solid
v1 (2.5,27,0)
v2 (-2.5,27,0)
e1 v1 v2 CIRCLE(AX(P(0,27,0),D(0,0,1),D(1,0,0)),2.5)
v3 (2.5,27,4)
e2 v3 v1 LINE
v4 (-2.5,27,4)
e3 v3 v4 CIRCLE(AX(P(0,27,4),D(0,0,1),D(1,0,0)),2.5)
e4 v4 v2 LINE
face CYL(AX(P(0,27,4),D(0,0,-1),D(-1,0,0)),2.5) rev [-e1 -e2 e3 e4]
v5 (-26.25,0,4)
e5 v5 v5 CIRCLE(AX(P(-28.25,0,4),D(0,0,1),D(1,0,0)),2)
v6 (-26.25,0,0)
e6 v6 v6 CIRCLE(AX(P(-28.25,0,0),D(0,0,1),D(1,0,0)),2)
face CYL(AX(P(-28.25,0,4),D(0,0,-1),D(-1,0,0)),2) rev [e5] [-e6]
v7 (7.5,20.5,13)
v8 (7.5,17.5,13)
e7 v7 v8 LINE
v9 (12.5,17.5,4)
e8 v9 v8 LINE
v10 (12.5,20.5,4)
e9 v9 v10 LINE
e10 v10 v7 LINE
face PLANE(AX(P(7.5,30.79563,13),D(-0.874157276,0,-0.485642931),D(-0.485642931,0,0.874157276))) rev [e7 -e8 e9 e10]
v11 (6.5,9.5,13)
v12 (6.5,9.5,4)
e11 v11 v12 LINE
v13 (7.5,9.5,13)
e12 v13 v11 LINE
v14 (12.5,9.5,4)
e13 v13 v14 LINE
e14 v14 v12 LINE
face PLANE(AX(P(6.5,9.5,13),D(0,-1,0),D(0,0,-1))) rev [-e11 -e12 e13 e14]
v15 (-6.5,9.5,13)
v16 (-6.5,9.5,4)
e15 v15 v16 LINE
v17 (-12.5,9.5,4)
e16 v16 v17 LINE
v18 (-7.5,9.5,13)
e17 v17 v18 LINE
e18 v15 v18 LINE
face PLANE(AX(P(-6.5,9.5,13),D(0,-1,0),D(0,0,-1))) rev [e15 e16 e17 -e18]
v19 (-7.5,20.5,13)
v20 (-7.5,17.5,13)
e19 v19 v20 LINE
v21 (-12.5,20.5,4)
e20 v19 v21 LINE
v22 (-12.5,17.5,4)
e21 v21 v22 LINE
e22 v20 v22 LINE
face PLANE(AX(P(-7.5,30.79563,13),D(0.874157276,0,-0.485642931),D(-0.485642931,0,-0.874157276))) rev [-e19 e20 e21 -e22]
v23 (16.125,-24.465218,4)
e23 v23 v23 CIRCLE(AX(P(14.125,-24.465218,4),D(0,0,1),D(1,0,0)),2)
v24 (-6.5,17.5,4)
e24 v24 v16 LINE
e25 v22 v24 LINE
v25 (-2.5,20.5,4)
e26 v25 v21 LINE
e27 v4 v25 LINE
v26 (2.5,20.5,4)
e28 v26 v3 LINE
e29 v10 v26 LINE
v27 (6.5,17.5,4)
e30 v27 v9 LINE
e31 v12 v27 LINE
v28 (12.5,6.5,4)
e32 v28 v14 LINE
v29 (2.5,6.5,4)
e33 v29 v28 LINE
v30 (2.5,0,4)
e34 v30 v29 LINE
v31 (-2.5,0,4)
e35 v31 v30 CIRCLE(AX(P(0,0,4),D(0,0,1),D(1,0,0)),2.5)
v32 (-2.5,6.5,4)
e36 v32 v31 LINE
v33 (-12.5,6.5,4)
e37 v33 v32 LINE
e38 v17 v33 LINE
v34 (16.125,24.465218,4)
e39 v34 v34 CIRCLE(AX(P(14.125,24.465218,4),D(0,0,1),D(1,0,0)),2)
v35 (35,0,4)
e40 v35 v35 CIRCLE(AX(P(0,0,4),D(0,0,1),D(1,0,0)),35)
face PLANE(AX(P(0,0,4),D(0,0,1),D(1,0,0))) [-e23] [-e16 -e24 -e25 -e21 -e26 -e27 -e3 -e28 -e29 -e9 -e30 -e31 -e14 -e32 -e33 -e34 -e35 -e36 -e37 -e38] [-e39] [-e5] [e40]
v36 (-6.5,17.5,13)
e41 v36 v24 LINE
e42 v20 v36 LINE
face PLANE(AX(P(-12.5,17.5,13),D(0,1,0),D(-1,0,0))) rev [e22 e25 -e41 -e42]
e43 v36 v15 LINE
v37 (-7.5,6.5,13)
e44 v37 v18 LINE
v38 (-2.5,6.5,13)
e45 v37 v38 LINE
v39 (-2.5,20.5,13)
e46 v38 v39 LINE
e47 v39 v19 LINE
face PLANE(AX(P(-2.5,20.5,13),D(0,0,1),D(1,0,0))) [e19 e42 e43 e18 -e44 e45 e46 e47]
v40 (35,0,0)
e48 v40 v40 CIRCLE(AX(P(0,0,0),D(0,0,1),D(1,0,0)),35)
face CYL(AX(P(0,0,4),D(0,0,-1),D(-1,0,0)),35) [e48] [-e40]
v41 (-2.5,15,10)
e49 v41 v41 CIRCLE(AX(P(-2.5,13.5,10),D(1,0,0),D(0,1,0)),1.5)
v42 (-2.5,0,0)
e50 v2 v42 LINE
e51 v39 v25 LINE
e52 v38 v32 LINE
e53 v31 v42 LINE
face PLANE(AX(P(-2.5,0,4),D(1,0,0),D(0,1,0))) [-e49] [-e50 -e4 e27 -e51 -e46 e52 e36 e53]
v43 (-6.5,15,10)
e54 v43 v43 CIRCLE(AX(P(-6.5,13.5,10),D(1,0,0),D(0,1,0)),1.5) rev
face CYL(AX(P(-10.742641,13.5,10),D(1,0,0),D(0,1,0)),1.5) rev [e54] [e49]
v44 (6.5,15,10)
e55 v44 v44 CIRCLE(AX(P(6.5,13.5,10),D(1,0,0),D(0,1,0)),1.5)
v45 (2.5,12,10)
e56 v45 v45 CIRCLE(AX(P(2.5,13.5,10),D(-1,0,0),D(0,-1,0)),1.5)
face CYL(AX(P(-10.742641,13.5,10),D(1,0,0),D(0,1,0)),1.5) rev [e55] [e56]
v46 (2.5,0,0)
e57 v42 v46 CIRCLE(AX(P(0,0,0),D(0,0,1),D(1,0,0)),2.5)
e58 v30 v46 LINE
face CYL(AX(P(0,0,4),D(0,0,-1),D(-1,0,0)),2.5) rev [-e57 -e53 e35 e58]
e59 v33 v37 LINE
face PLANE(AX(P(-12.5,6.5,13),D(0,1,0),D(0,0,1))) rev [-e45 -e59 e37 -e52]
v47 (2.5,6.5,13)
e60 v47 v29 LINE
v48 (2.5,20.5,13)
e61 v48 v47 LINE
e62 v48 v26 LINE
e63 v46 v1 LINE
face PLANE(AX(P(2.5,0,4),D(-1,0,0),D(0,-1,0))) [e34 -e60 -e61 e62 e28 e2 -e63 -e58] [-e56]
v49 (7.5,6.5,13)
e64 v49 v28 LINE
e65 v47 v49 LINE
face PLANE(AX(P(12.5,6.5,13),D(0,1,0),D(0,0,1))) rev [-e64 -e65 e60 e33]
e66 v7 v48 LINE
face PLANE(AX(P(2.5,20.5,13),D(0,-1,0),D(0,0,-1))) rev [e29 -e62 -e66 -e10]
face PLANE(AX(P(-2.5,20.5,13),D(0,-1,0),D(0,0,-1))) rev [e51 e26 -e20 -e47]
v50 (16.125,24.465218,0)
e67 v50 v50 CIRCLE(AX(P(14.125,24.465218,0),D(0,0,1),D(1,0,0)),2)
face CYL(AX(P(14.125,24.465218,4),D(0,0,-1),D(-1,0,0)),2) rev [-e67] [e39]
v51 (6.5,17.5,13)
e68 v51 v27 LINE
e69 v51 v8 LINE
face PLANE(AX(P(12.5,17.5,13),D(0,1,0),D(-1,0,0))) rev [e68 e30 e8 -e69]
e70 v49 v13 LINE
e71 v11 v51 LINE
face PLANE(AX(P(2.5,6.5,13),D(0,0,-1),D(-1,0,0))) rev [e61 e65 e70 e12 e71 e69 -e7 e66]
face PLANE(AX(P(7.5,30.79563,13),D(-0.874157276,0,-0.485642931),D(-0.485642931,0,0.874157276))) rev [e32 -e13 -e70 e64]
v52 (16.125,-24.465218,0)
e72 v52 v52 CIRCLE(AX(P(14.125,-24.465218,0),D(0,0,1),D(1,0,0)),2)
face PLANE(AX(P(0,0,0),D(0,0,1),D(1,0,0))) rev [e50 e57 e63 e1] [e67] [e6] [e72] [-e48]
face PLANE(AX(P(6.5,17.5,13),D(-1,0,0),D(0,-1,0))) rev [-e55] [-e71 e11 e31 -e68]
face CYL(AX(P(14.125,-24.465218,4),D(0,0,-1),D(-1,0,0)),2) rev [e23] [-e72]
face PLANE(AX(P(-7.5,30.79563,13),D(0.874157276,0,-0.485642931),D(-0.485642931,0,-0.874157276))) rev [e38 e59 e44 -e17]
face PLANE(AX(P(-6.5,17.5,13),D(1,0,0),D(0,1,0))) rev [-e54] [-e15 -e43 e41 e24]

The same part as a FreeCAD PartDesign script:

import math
import FreeCAD as App
import Part
import Sketcher

V = App.Vector
Q = App.Units.Quantity

doc = App.newDocument("Part")
body = doc.addObject("PartDesign::Body", "Body")

sketch1 = doc.addObject("Sketcher::SketchObject", "Sketch")
body.addObject(sketch1)
sketch1.AttachmentSupport = (doc.XY_Plane, [""])
sketch1.MapMode = "FlatFace"
sketch1.addGeometry(Part.Circle(V(0, 0, 0), V(0, 0, 1), 35), False)
sketch1.addGeometry(Part.Circle(V(-28.25, 0, 0), V(0, 0, 1), 2), False)
sketch1.addGeometry(Part.Circle(V(14.125, -24.465218, 0), V(0, 0, 1), 2), False)
sketch1.addGeometry(Part.ArcOfCircle(Part.Circle(V(0, 0, 0), V(0, 0, 1), 2.5), math.radians(180), math.radians(360)), False)
sketch1.addGeometry(Part.LineSegment(V(-2.5, 0, 0), V(-2.5, 27, 0)), False)
sketch1.addGeometry(Part.ArcOfCircle(Part.Circle(V(0, 27, 0), V(0, 0, 1), 2.5), math.radians(0), math.radians(180)), False)
sketch1.addGeometry(Part.LineSegment(V(2.5, 27, 0), V(2.5, 0, 0)), False)
sketch1.addGeometry(Part.Circle(V(14.125, 24.465218, 0), V(0, 0, 1), 2), False)
sketch1.addConstraint(Sketcher.Constraint("Tangent", 3, 1, 4, 1))
sketch1.addConstraint(Sketcher.Constraint("Tangent", 4, 2, 5, 2))
sketch1.addConstraint(Sketcher.Constraint("Tangent", 5, 1, 6, 1))
sketch1.addConstraint(Sketcher.Constraint("Tangent", 6, 2, 3, 2))
sketch1.addConstraint(Sketcher.Constraint("Vertical", 4))
sketch1.addConstraint(Sketcher.Constraint("Vertical", 6))
sketch1.addConstraint(Sketcher.Constraint("Coincident", 0, 3, -1, 1))
sketch1.addConstraint(Sketcher.Constraint("Coincident", 3, 3, -1, 1))
sketch1.addConstraint(Sketcher.Constraint("Equal", 1, 2))
sketch1.addConstraint(Sketcher.Constraint("Equal", 2, 7))
sketch1.addConstraint(Sketcher.Constraint("Symmetric", 2, 3, 7, 3, -1))
sketch1.addConstraint(Sketcher.Constraint("PointOnObject", 1, 3, -1))
sketch1.addConstraint(Sketcher.Constraint("Diameter", 0, Q("70 mm")))
sketch1.addConstraint(Sketcher.Constraint("Diameter", 1, Q("4 mm")))
sketch1.addConstraint(Sketcher.Constraint("Radius", 3, Q("2.5 mm")))
sketch1.addConstraint(Sketcher.Constraint("DistanceY", 4, 1, 4, 2, Q("27 mm")))
sketch1.addConstraint(Sketcher.Constraint("DistanceX", 1, 3, -1, 1, Q("28.25 mm")))
sketch1.addConstraint(Sketcher.Constraint("DistanceX", -1, 1, 2, 3, Q("14.125 mm")))
sketch1.addConstraint(Sketcher.Constraint("DistanceY", 2, 3, -1, 1, Q("24.465218 mm")))
pad1 = doc.addObject("PartDesign::Pad", "Pad")
body.addObject(pad1)
pad1.Profile = sketch1
pad1.Length = 4

sketch2 = doc.addObject("Sketcher::SketchObject", "Sketch001")
body.addObject(sketch2)
sketch2.AttachmentSupport = (doc.XY_Plane, [""])
sketch2.MapMode = "FlatFace"
sketch2.AttachmentOffset = App.Placement(V(0, 0, 4), App.Rotation())
sketch2.addGeometry(Part.LineSegment(V(-2.5, 20.5, 0), V(-12.5, 20.5, 0)), False)
sketch2.addGeometry(Part.LineSegment(V(-12.5, 20.5, 0), V(-12.5, 17.5, 0)), False)
sketch2.addGeometry(Part.LineSegment(V(-12.5, 17.5, 0), V(-6.5, 17.5, 0)), False)
sketch2.addGeometry(Part.LineSegment(V(-6.5, 17.5, 0), V(-6.5, 9.5, 0)), False)
sketch2.addGeometry(Part.LineSegment(V(-6.5, 9.5, 0), V(-12.5, 9.5, 0)), False)
sketch2.addGeometry(Part.LineSegment(V(-12.5, 9.5, 0), V(-12.5, 6.5, 0)), False)
sketch2.addGeometry(Part.LineSegment(V(-12.5, 6.5, 0), V(-2.5, 6.5, 0)), False)
sketch2.addGeometry(Part.LineSegment(V(-2.5, 6.5, 0), V(-2.5, 20.5, 0)), False)
sketch2.addGeometry(Part.LineSegment(V(2.5, 20.5, 0), V(2.5, 6.5, 0)), False)
sketch2.addGeometry(Part.LineSegment(V(2.5, 6.5, 0), V(12.5, 6.5, 0)), False)
sketch2.addGeometry(Part.LineSegment(V(12.5, 6.5, 0), V(12.5, 9.5, 0)), False)
sketch2.addGeometry(Part.LineSegment(V(12.5, 9.5, 0), V(6.5, 9.5, 0)), False)
sketch2.addGeometry(Part.LineSegment(V(6.5, 9.5, 0), V(6.5, 17.5, 0)), False)
sketch2.addGeometry(Part.LineSegment(V(6.5, 17.5, 0), V(12.5, 17.5, 0)), False)
sketch2.addGeometry(Part.LineSegment(V(12.5, 17.5, 0), V(12.5, 20.5, 0)), False)
sketch2.addGeometry(Part.LineSegment(V(12.5, 20.5, 0), V(2.5, 20.5, 0)), False)
sketch2.addConstraint(Sketcher.Constraint("Coincident", 0, 2, 1, 1))
sketch2.addConstraint(Sketcher.Constraint("Coincident", 1, 2, 2, 1))
sketch2.addConstraint(Sketcher.Constraint("Coincident", 2, 2, 3, 1))
sketch2.addConstraint(Sketcher.Constraint("Coincident", 3, 2, 4, 1))
sketch2.addConstraint(Sketcher.Constraint("Coincident", 4, 2, 5, 1))
sketch2.addConstraint(Sketcher.Constraint("Coincident", 5, 2, 6, 1))
sketch2.addConstraint(Sketcher.Constraint("Coincident", 6, 2, 7, 1))
sketch2.addConstraint(Sketcher.Constraint("Coincident", 7, 2, 0, 1))
sketch2.addConstraint(Sketcher.Constraint("Coincident", 8, 2, 9, 1))
sketch2.addConstraint(Sketcher.Constraint("Coincident", 9, 2, 10, 1))
sketch2.addConstraint(Sketcher.Constraint("Coincident", 10, 2, 11, 1))
sketch2.addConstraint(Sketcher.Constraint("Coincident", 11, 2, 12, 1))
sketch2.addConstraint(Sketcher.Constraint("Coincident", 12, 2, 13, 1))
sketch2.addConstraint(Sketcher.Constraint("Coincident", 13, 2, 14, 1))
sketch2.addConstraint(Sketcher.Constraint("Coincident", 14, 2, 15, 1))
sketch2.addConstraint(Sketcher.Constraint("Coincident", 15, 2, 8, 1))
sketch2.addConstraint(Sketcher.Constraint("Horizontal", 0))
sketch2.addConstraint(Sketcher.Constraint("Vertical", 1))
sketch2.addConstraint(Sketcher.Constraint("Horizontal", 2))
sketch2.addConstraint(Sketcher.Constraint("Vertical", 3))
sketch2.addConstraint(Sketcher.Constraint("Horizontal", 4))
sketch2.addConstraint(Sketcher.Constraint("Vertical", 5))
sketch2.addConstraint(Sketcher.Constraint("Horizontal", 6))
sketch2.addConstraint(Sketcher.Constraint("Vertical", 7))
sketch2.addConstraint(Sketcher.Constraint("Vertical", 8))
sketch2.addConstraint(Sketcher.Constraint("Horizontal", 9))
sketch2.addConstraint(Sketcher.Constraint("Vertical", 10))
sketch2.addConstraint(Sketcher.Constraint("Horizontal", 11))
sketch2.addConstraint(Sketcher.Constraint("Vertical", 12))
sketch2.addConstraint(Sketcher.Constraint("Horizontal", 13))
sketch2.addConstraint(Sketcher.Constraint("Vertical", 14))
sketch2.addConstraint(Sketcher.Constraint("Horizontal", 15))
sketch2.addConstraint(Sketcher.Constraint("Symmetric", 6, 2, 8, 2, -2))
sketch2.addConstraint(Sketcher.Constraint("Symmetric", 4, 2, 10, 2, -2))
sketch2.addConstraint(Sketcher.Constraint("Symmetric", 2, 2, 12, 2, -2))
sketch2.addConstraint(Sketcher.Constraint("Symmetric", 0, 2, 14, 2, -2))
sketch2.addConstraint(Sketcher.Constraint("Vertical", 1, 2, 4, 2))
sketch2.addConstraint(Sketcher.Constraint("Equal", 1, 5))
sketch2.addConstraint(Sketcher.Constraint("DistanceX", 0, 2, 0, 1, Q("10 mm")))
sketch2.addConstraint(Sketcher.Constraint("DistanceX", 2, 1, 2, 2, Q("6 mm")))
sketch2.addConstraint(Sketcher.Constraint("DistanceY", 1, 2, 1, 1, Q("3 mm")))
sketch2.addConstraint(Sketcher.Constraint("DistanceY", 3, 2, 3, 1, Q("8 mm")))
sketch2.addConstraint(Sketcher.Constraint("DistanceX", 6, 2, 8, 2, Q("5 mm")))
sketch2.addConstraint(Sketcher.Constraint("DistanceY", -1, 1, 0, 2, Q("20.5 mm")))
pad2 = doc.addObject("PartDesign::Pad", "Pad001")
body.addObject(pad2)
pad2.Profile = sketch2
pad2.Length = 9

sketch3 = doc.addObject("Sketcher::SketchObject", "Sketch002")
body.addObject(sketch3)
sketch3.AttachmentSupport = (doc.XZ_Plane, [""])
sketch3.MapMode = "FlatFace"
sketch3.AttachmentOffset = App.Placement(V(0, 0, -6.5), App.Rotation())
sketch3.addGeometry(Part.LineSegment(V(-12.5, 13, 0), V(-12.5, 4, 0)), False)
sketch3.addGeometry(Part.LineSegment(V(-12.5, 4, 0), V(-7.5, 13, 0)), False)
sketch3.addGeometry(Part.LineSegment(V(-7.5, 13, 0), V(-12.5, 13, 0)), False)
sketch3.addGeometry(Part.LineSegment(V(12.5, 4, 0), V(12.5, 13, 0)), False)
sketch3.addGeometry(Part.LineSegment(V(12.5, 13, 0), V(7.5, 13, 0)), False)
sketch3.addGeometry(Part.LineSegment(V(7.5, 13, 0), V(12.5, 4, 0)), False)
sketch3.addConstraint(Sketcher.Constraint("Coincident", 0, 2, 1, 1))
sketch3.addConstraint(Sketcher.Constraint("Coincident", 1, 2, 2, 1))
sketch3.addConstraint(Sketcher.Constraint("Coincident", 2, 2, 0, 1))
sketch3.addConstraint(Sketcher.Constraint("Coincident", 3, 2, 4, 1))
sketch3.addConstraint(Sketcher.Constraint("Coincident", 4, 2, 5, 1))
sketch3.addConstraint(Sketcher.Constraint("Coincident", 5, 2, 3, 1))
sketch3.addConstraint(Sketcher.Constraint("Vertical", 0))
sketch3.addConstraint(Sketcher.Constraint("Horizontal", 2))
sketch3.addConstraint(Sketcher.Constraint("Vertical", 3))
sketch3.addConstraint(Sketcher.Constraint("Horizontal", 4))
sketch3.addConstraint(Sketcher.Constraint("Symmetric", 2, 2, 3, 2, -2))
sketch3.addConstraint(Sketcher.Constraint("Horizontal", 0, 2, 5, 2))
sketch3.addConstraint(Sketcher.Constraint("Equal", 2, 4))
sketch3.addConstraint(Sketcher.Constraint("DistanceX", 2, 2, 2, 1, Q("5 mm")))
sketch3.addConstraint(Sketcher.Constraint("DistanceY", 0, 2, 0, 1, Q("9 mm")))
sketch3.addConstraint(Sketcher.Constraint("DistanceY", -1, 1, 0, 2, Q("4 mm")))
sketch3.addConstraint(Sketcher.Constraint("DistanceX", 1, 2, 3, 2, Q("20 mm")))
pocket1 = doc.addObject("PartDesign::Pocket", "Pocket")
body.addObject(pocket1)
pocket1.Profile = sketch3
pocket1.Length = 14

sketch4 = doc.addObject("Sketcher::SketchObject", "Sketch003")
body.addObject(sketch4)
sketch4.AttachmentSupport = (doc.YZ_Plane, [""])
sketch4.MapMode = "FlatFace"
sketch4.AttachmentOffset = App.Placement(V(0, 0, -6.5), App.Rotation())
sketch4.addGeometry(Part.Circle(V(13.5, 10, 0), V(0, 0, 1), 1.45), False)
sketch4.addConstraint(Sketcher.Constraint("Diameter", 0, Q("2.9 mm")))
sketch4.addConstraint(Sketcher.Constraint("DistanceY", -1, 1, 0, 3, Q("10 mm")))
sketch4.addConstraint(Sketcher.Constraint("DistanceX", -1, 1, 0, 3, Q("13.5 mm")))
pocket2 = doc.addObject("PartDesign::Pocket", "Pocket001")
body.addObject(pocket2)
pocket2.Profile = sketch4
pocket2.Length = 13
pocket2.Reversed = True

sketch5 = doc.addObject("Sketcher::SketchObject", "Sketch004")
body.addObject(sketch5)
sketch5.AttachmentSupport = (doc.YZ_Plane, [""])
sketch5.MapMode = "FlatFace"
sketch5.AttachmentOffset = App.Placement(V(0, 0, 6.5), App.Rotation())
sketch5.addGeometry(Part.Circle(V(13.5, 10, 0), V(0, 0, 1), 1.5), False)
sketch5.addConstraint(Sketcher.Constraint("Diameter", 0, Q("3 mm")))
sketch5.addConstraint(Sketcher.Constraint("DistanceY", -1, 1, 0, 3, Q("10 mm")))
sketch5.addConstraint(Sketcher.Constraint("DistanceX", -1, 1, 0, 3, Q("13.5 mm")))
pocket3 = doc.addObject("PartDesign::Pocket", "Pocket002")
body.addObject(pocket3)
pocket3.Profile = sketch5
pocket3.Length = 13

doc.recompute()
